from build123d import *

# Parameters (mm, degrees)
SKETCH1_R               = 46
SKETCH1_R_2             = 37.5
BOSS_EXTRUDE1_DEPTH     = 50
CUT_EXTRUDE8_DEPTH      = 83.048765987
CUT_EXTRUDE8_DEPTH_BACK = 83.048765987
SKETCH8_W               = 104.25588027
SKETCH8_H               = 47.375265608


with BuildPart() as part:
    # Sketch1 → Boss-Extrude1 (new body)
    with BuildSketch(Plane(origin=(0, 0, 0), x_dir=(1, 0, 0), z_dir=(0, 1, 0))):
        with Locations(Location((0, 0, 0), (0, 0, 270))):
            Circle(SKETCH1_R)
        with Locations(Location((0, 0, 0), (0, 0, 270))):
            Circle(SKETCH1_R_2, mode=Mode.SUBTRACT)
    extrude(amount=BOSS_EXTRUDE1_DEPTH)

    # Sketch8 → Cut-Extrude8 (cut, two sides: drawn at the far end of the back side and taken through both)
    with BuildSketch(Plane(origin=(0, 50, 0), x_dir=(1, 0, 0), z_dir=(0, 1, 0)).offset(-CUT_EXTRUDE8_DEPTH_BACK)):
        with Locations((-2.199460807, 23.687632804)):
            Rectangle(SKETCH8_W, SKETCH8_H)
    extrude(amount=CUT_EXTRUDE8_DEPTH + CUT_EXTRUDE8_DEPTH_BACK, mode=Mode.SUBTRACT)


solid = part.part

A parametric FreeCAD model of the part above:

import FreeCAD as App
import Part
import Sketcher

V = App.Vector


def add_polygon(sketch, points):
    """Adds a closed chain of lines whose ends are joined by coincident constraints."""
    first, n = sketch.GeometryCount, len(points)
    for a, b in zip(points, points[1:] + points[:1]):
        sketch.addGeometry(Part.LineSegment(App.Vector(*a, 0), App.Vector(*b, 0)), False)
    for i in range(n):
        sketch.addConstraint(Sketcher.Constraint("Coincident", first + i, 2, first + (i + 1) % n, 1))

doc = App.newDocument("Part")
body = doc.addObject("PartDesign::Body", "Body")

sketch1 = body.newObject("Sketcher::SketchObject", "Sketch")
sketch1.AttachmentSupport = (doc.getObject("XZ_Plane"), [""])
sketch1.MapMode = "FlatFace"
sketch1.addGeometry([
    Part.Circle(V(0, 0, 0), V(0, 0, 1), 46),
    Part.Circle(V(0, 0, 0), V(0, 0, 1), 37.5),
], False)
sketch1.addConstraint([
    Sketcher.Constraint("Coincident", 0, 3, -1, 1),
    Sketcher.Constraint("Coincident", 1, 3, -1, 1),
    Sketcher.Constraint("Diameter", 0, 92.0),
    Sketcher.Constraint("Diameter", 1, 75.0),
])
pad1 = body.newObject("PartDesign::Pad", "Pad")
pad1.Profile = sketch1
pad1.Length = 50
pad1.Reversed = True

sketch2 = body.newObject("Sketcher::SketchObject", "Sketch001")
sketch2.AttachmentSupport = (doc.getObject("XZ_Plane"), [""])
sketch2.MapMode = "FlatFace"
sketch2.AttachmentOffset = App.Placement(V(0, 0, -50), App.Rotation())
add_polygon(sketch2, [(-54.327401, -47.375266), (-54.327401, 0), (49.928479, 0), (49.928479, -47.375266)])
sketch2.addConstraint([
    Sketcher.Constraint("Vertical", 0),
    Sketcher.Constraint("Horizontal", 1),
    Sketcher.Constraint("Vertical", 2),
    Sketcher.Constraint("Horizontal", 3),
    Sketcher.Constraint("PointOnObject", 0, 2, -1),
    Sketcher.Constraint("DistanceX", 1, 1, 1, 2, 104.25588),
    Sketcher.Constraint("DistanceX", 0, 2, -1, 1, 54.327401),
    Sketcher.Constraint("DistanceY", 0, 1, 0, 2, 47.375266),
])
pocket1 = body.newObject("PartDesign::Pocket", "Pocket")
pocket1.Profile = sketch2
pocket1.Type = "ThroughAll"
pocket1.Midplane = True

doc.recompute()
